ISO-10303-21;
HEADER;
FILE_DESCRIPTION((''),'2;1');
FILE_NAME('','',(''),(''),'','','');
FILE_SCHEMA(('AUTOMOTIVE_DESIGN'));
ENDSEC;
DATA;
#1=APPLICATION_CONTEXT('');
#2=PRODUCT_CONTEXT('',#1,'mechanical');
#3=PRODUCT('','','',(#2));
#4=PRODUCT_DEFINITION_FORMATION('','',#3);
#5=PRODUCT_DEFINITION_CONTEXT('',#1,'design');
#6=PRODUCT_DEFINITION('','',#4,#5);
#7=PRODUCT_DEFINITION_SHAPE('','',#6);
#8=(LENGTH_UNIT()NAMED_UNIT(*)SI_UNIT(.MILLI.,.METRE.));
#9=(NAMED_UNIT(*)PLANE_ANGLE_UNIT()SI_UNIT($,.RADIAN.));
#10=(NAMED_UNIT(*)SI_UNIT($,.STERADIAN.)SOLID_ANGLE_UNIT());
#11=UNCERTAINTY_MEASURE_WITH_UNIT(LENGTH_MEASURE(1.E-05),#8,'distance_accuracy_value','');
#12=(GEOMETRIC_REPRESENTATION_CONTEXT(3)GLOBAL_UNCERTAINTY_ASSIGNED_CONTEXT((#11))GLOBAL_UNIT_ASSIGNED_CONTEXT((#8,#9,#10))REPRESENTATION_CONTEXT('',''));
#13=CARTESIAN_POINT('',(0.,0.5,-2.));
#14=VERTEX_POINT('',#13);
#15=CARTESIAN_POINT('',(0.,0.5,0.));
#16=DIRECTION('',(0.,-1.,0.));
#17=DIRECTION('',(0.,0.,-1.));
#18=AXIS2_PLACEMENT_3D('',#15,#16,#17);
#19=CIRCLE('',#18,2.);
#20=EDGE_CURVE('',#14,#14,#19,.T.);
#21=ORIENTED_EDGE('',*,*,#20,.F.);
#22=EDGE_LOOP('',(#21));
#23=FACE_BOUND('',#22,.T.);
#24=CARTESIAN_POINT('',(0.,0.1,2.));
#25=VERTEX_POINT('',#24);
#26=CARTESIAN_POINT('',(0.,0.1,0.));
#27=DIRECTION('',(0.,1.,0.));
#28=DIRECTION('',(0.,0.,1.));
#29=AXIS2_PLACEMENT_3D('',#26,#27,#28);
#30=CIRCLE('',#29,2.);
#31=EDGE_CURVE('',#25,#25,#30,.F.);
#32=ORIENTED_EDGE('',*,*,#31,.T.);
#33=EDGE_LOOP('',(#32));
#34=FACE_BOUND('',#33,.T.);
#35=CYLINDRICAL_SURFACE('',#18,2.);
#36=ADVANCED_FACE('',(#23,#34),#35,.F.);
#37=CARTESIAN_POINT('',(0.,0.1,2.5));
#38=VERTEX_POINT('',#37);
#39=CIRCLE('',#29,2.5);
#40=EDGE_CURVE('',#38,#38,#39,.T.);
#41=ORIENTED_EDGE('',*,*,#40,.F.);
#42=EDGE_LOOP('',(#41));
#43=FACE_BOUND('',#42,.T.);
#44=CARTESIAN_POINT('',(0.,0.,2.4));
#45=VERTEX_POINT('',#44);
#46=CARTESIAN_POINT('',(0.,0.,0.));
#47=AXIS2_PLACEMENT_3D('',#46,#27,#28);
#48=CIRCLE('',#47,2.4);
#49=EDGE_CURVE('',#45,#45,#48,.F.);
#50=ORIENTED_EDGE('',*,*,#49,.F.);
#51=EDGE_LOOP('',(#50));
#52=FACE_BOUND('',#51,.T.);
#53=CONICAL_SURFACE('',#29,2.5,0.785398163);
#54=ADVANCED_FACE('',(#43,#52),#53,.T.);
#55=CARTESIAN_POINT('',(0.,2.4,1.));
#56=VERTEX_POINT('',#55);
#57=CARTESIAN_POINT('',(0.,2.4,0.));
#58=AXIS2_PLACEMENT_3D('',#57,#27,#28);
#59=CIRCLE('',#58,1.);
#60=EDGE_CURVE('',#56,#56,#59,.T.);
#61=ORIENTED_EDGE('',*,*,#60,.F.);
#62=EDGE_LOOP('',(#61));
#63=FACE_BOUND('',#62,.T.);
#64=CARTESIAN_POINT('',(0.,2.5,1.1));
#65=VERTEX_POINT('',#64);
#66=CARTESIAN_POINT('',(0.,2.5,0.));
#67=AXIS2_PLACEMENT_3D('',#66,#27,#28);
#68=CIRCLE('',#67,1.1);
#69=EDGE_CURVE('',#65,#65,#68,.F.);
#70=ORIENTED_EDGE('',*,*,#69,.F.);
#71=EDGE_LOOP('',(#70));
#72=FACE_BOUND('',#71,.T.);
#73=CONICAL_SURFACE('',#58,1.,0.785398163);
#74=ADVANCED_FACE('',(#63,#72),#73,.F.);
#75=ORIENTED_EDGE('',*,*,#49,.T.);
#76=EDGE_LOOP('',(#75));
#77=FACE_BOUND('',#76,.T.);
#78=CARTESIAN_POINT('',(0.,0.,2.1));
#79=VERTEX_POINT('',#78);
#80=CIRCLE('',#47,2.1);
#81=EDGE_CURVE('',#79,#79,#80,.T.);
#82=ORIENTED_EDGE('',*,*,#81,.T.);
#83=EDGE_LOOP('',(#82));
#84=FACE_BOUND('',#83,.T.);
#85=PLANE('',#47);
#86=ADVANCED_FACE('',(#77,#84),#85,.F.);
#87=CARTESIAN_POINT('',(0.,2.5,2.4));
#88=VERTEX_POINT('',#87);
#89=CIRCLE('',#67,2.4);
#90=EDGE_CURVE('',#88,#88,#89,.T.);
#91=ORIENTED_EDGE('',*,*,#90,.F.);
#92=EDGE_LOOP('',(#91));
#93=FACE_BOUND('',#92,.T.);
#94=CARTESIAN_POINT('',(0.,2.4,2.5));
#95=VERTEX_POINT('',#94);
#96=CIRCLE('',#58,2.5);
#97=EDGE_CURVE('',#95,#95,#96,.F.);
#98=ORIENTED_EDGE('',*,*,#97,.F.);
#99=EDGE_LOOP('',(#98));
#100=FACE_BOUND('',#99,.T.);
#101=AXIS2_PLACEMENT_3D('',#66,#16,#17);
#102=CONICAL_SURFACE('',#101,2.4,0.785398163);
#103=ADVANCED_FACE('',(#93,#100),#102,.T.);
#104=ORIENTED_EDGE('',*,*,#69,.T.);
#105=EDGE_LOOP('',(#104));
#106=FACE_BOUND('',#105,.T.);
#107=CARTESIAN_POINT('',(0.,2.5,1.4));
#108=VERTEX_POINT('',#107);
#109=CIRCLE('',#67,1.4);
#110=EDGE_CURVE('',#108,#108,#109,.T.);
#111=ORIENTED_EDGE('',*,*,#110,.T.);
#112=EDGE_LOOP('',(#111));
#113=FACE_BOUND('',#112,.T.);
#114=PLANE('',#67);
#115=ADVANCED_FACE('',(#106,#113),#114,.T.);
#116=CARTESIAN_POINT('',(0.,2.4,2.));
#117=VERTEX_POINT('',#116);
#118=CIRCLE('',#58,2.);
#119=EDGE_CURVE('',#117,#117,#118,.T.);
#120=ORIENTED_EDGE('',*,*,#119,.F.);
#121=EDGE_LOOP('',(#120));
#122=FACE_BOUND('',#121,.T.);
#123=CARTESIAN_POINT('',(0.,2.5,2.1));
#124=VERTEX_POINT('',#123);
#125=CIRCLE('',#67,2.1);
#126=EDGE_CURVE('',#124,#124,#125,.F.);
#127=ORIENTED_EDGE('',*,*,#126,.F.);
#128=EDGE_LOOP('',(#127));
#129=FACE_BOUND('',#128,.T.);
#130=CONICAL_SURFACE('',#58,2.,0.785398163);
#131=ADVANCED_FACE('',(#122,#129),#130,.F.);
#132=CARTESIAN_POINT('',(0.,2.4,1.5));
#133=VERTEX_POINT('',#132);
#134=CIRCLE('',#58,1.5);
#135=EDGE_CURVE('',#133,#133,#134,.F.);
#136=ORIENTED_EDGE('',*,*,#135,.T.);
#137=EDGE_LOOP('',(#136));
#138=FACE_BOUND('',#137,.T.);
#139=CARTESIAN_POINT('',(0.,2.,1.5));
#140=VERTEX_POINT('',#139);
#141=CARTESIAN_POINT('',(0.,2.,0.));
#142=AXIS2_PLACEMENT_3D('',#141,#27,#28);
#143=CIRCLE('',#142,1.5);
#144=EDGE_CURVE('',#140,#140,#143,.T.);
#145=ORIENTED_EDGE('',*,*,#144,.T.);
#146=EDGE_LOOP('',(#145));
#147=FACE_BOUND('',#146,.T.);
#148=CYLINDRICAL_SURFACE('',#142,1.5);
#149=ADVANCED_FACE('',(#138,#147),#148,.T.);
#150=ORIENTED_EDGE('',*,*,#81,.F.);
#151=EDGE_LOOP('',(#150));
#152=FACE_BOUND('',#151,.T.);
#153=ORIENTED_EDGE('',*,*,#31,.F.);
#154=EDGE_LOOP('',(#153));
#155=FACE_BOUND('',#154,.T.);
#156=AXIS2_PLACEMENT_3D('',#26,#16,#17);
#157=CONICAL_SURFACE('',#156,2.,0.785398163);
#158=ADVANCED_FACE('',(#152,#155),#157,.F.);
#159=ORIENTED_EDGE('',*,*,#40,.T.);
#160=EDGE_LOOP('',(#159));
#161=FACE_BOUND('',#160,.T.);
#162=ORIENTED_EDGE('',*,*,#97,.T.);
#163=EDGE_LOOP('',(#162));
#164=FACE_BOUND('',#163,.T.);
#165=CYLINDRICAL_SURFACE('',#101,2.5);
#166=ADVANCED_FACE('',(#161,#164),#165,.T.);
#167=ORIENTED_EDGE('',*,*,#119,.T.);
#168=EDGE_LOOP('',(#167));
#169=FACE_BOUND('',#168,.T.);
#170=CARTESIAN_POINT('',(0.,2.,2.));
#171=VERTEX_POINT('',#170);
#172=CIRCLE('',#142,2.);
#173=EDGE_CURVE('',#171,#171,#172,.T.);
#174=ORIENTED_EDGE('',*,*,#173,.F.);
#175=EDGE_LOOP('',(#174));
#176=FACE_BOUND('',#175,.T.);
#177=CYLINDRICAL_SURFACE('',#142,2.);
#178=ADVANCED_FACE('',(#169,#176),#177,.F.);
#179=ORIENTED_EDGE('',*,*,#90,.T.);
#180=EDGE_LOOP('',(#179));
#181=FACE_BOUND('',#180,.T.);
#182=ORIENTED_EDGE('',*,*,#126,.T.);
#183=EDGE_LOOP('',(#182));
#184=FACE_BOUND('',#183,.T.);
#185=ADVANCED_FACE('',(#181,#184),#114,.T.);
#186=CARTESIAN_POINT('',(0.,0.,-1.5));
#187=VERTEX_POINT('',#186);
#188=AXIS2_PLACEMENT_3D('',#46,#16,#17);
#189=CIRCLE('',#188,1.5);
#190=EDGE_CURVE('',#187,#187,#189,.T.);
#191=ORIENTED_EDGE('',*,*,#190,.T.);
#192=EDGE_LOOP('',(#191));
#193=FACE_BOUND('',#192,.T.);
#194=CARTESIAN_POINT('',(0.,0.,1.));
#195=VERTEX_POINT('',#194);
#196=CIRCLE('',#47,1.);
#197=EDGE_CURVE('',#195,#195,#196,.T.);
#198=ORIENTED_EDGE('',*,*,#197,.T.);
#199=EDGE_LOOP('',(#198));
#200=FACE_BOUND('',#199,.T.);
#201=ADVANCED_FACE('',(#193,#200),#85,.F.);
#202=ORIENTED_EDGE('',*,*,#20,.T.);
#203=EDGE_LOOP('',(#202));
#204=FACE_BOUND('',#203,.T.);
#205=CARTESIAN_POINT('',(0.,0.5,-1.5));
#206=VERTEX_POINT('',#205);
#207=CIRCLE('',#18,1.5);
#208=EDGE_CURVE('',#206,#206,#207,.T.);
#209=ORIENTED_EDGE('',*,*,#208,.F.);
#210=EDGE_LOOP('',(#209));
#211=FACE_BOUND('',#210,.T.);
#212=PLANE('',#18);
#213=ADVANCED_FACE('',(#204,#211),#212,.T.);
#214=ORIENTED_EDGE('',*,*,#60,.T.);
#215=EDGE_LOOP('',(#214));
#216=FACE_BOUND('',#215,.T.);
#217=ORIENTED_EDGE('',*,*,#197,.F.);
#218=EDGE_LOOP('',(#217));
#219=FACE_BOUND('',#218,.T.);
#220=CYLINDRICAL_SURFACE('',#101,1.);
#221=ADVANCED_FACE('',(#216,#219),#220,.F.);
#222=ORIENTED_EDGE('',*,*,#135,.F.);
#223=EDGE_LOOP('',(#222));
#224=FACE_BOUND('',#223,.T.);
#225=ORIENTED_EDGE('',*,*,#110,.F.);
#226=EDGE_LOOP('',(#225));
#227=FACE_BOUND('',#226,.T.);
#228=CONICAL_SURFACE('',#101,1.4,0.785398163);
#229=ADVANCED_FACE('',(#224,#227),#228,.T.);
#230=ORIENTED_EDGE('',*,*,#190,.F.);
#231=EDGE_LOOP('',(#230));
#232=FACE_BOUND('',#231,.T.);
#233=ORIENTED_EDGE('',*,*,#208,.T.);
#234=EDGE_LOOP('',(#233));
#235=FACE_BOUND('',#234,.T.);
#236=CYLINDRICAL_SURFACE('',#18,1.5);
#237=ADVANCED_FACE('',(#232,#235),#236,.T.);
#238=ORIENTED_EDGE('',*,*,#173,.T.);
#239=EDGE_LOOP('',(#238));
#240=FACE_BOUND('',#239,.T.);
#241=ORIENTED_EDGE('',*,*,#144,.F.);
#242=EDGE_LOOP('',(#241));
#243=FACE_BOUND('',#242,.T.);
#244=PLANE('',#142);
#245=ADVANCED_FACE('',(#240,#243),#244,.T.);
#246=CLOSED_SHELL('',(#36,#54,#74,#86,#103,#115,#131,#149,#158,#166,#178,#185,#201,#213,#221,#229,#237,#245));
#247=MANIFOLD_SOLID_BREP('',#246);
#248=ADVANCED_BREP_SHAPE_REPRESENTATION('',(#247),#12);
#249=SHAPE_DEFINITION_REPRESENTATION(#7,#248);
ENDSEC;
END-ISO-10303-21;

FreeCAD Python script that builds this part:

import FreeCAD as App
import Part
import Sketcher

V = App.Vector
Q = App.Units.Quantity


def edges_at(feature, points):
    """Names of the edges that pass closest to the given points."""
    edges = feature.Shape.Edges
    near = lambda p: min(range(len(edges)), key=lambda i: edges[i].distToShape(Part.Vertex(*p))[0])
    return sorted({f"Edge{near(p) + 1}" for p in points})

doc = App.newDocument("Part")
body = doc.addObject("PartDesign::Body", "Body")

sketch1 = doc.addObject("Sketcher::SketchObject", "Sketch")
body.addObject(sketch1)
sketch1.AttachmentSupport = (doc.XZ_Plane, [""])
sketch1.MapMode = "FlatFace"
sketch1.addGeometry([
    Part.Circle(V(0, 0, 0), V(0, 0, 1), 2.5),
    Part.Circle(V(0, 0, 0), V(0, 0, 1), 1),
], False)
sketch1.addConstraint([
    Sketcher.Constraint("Coincident", 0, 3, -1, 1),
    Sketcher.Constraint("Coincident", 1, 3, -1, 1),
    Sketcher.Constraint("Diameter", 0, Q("5 mm")),
    Sketcher.Constraint("Diameter", 1, Q("2 mm")),
])
pad1 = doc.addObject("PartDesign::Pad", "Pad")
body.addObject(pad1)
pad1.Profile = sketch1
pad1.Length = 2.5
pad1.Reversed = True

sketch2 = doc.addObject("Sketcher::SketchObject", "Sketch001")
body.addObject(sketch2)
sketch2.AttachmentSupport = (doc.XZ_Plane, [""])
sketch2.MapMode = "FlatFace"
sketch2.AttachmentOffset = App.Placement(V(0, 0, -2.5), App.Rotation())
sketch2.addGeometry([
    Part.Circle(V(0, 0, 0), V(0, 0, 1), 2),
    Part.Circle(V(0, 0, 0), V(0, 0, 1), 1.5),
], False)
sketch2.addConstraint([
    Sketcher.Constraint("Coincident", 0, 3, -1, 1),
    Sketcher.Constraint("Coincident", 1, 3, -1, 1),
    Sketcher.Constraint("Diameter", 0, Q("4 mm")),
    Sketcher.Constraint("Diameter", 1, Q("3 mm")),
])
pocket1 = doc.addObject("PartDesign::Pocket", "Pocket")
body.addObject(pocket1)
pocket1.Profile = sketch2
pocket1.Length = 0.5
pocket1.Reversed = True

sketch3 = doc.addObject("Sketcher::SketchObject", "Sketch002")
body.addObject(sketch3)
sketch3.AttachmentSupport = (doc.XZ_Plane, [""])
sketch3.MapMode = "FlatFace"
sketch3.AttachmentOffset = App.Placement(V(0, 0, -0.5), App.Rotation())
sketch3.addGeometry([
    Part.Circle(V(0, 0, 0), V(0, 0, 1), 2),
    Part.Circle(V(0, 0, 0), V(0, 0, 1), 1.5),
], False)
sketch3.addConstraint([
    Sketcher.Constraint("Coincident", 0, 3, -1, 1),
    Sketcher.Constraint("Coincident", 1, 3, -1, 1),
    Sketcher.Constraint("Diameter", 0, Q("4 mm")),
    Sketcher.Constraint("Diameter", 1, Q("3 mm")),
])
pocket2 = doc.addObject("PartDesign::Pocket", "Pocket001")
body.addObject(pocket2)
pocket2.Profile = sketch3
pocket2.Length = 0.5
pocket2.Reversed = True
doc.recompute()

chamfer = doc.addObject("PartDesign::Chamfer", "Chamfer")
body.addObject(chamfer)
chamfer.Base = (pocket2, edges_at(pocket2, [
    (0, 2.5, -2),
    (0, 2.5, -1.5),
    (0, 0, -2),
    (0, 0, -2.5),
    (0, 2.5, -2.5),
    (0, 2.5, -1),
]))
chamfer.Size = 0.1

doc.recompute()
